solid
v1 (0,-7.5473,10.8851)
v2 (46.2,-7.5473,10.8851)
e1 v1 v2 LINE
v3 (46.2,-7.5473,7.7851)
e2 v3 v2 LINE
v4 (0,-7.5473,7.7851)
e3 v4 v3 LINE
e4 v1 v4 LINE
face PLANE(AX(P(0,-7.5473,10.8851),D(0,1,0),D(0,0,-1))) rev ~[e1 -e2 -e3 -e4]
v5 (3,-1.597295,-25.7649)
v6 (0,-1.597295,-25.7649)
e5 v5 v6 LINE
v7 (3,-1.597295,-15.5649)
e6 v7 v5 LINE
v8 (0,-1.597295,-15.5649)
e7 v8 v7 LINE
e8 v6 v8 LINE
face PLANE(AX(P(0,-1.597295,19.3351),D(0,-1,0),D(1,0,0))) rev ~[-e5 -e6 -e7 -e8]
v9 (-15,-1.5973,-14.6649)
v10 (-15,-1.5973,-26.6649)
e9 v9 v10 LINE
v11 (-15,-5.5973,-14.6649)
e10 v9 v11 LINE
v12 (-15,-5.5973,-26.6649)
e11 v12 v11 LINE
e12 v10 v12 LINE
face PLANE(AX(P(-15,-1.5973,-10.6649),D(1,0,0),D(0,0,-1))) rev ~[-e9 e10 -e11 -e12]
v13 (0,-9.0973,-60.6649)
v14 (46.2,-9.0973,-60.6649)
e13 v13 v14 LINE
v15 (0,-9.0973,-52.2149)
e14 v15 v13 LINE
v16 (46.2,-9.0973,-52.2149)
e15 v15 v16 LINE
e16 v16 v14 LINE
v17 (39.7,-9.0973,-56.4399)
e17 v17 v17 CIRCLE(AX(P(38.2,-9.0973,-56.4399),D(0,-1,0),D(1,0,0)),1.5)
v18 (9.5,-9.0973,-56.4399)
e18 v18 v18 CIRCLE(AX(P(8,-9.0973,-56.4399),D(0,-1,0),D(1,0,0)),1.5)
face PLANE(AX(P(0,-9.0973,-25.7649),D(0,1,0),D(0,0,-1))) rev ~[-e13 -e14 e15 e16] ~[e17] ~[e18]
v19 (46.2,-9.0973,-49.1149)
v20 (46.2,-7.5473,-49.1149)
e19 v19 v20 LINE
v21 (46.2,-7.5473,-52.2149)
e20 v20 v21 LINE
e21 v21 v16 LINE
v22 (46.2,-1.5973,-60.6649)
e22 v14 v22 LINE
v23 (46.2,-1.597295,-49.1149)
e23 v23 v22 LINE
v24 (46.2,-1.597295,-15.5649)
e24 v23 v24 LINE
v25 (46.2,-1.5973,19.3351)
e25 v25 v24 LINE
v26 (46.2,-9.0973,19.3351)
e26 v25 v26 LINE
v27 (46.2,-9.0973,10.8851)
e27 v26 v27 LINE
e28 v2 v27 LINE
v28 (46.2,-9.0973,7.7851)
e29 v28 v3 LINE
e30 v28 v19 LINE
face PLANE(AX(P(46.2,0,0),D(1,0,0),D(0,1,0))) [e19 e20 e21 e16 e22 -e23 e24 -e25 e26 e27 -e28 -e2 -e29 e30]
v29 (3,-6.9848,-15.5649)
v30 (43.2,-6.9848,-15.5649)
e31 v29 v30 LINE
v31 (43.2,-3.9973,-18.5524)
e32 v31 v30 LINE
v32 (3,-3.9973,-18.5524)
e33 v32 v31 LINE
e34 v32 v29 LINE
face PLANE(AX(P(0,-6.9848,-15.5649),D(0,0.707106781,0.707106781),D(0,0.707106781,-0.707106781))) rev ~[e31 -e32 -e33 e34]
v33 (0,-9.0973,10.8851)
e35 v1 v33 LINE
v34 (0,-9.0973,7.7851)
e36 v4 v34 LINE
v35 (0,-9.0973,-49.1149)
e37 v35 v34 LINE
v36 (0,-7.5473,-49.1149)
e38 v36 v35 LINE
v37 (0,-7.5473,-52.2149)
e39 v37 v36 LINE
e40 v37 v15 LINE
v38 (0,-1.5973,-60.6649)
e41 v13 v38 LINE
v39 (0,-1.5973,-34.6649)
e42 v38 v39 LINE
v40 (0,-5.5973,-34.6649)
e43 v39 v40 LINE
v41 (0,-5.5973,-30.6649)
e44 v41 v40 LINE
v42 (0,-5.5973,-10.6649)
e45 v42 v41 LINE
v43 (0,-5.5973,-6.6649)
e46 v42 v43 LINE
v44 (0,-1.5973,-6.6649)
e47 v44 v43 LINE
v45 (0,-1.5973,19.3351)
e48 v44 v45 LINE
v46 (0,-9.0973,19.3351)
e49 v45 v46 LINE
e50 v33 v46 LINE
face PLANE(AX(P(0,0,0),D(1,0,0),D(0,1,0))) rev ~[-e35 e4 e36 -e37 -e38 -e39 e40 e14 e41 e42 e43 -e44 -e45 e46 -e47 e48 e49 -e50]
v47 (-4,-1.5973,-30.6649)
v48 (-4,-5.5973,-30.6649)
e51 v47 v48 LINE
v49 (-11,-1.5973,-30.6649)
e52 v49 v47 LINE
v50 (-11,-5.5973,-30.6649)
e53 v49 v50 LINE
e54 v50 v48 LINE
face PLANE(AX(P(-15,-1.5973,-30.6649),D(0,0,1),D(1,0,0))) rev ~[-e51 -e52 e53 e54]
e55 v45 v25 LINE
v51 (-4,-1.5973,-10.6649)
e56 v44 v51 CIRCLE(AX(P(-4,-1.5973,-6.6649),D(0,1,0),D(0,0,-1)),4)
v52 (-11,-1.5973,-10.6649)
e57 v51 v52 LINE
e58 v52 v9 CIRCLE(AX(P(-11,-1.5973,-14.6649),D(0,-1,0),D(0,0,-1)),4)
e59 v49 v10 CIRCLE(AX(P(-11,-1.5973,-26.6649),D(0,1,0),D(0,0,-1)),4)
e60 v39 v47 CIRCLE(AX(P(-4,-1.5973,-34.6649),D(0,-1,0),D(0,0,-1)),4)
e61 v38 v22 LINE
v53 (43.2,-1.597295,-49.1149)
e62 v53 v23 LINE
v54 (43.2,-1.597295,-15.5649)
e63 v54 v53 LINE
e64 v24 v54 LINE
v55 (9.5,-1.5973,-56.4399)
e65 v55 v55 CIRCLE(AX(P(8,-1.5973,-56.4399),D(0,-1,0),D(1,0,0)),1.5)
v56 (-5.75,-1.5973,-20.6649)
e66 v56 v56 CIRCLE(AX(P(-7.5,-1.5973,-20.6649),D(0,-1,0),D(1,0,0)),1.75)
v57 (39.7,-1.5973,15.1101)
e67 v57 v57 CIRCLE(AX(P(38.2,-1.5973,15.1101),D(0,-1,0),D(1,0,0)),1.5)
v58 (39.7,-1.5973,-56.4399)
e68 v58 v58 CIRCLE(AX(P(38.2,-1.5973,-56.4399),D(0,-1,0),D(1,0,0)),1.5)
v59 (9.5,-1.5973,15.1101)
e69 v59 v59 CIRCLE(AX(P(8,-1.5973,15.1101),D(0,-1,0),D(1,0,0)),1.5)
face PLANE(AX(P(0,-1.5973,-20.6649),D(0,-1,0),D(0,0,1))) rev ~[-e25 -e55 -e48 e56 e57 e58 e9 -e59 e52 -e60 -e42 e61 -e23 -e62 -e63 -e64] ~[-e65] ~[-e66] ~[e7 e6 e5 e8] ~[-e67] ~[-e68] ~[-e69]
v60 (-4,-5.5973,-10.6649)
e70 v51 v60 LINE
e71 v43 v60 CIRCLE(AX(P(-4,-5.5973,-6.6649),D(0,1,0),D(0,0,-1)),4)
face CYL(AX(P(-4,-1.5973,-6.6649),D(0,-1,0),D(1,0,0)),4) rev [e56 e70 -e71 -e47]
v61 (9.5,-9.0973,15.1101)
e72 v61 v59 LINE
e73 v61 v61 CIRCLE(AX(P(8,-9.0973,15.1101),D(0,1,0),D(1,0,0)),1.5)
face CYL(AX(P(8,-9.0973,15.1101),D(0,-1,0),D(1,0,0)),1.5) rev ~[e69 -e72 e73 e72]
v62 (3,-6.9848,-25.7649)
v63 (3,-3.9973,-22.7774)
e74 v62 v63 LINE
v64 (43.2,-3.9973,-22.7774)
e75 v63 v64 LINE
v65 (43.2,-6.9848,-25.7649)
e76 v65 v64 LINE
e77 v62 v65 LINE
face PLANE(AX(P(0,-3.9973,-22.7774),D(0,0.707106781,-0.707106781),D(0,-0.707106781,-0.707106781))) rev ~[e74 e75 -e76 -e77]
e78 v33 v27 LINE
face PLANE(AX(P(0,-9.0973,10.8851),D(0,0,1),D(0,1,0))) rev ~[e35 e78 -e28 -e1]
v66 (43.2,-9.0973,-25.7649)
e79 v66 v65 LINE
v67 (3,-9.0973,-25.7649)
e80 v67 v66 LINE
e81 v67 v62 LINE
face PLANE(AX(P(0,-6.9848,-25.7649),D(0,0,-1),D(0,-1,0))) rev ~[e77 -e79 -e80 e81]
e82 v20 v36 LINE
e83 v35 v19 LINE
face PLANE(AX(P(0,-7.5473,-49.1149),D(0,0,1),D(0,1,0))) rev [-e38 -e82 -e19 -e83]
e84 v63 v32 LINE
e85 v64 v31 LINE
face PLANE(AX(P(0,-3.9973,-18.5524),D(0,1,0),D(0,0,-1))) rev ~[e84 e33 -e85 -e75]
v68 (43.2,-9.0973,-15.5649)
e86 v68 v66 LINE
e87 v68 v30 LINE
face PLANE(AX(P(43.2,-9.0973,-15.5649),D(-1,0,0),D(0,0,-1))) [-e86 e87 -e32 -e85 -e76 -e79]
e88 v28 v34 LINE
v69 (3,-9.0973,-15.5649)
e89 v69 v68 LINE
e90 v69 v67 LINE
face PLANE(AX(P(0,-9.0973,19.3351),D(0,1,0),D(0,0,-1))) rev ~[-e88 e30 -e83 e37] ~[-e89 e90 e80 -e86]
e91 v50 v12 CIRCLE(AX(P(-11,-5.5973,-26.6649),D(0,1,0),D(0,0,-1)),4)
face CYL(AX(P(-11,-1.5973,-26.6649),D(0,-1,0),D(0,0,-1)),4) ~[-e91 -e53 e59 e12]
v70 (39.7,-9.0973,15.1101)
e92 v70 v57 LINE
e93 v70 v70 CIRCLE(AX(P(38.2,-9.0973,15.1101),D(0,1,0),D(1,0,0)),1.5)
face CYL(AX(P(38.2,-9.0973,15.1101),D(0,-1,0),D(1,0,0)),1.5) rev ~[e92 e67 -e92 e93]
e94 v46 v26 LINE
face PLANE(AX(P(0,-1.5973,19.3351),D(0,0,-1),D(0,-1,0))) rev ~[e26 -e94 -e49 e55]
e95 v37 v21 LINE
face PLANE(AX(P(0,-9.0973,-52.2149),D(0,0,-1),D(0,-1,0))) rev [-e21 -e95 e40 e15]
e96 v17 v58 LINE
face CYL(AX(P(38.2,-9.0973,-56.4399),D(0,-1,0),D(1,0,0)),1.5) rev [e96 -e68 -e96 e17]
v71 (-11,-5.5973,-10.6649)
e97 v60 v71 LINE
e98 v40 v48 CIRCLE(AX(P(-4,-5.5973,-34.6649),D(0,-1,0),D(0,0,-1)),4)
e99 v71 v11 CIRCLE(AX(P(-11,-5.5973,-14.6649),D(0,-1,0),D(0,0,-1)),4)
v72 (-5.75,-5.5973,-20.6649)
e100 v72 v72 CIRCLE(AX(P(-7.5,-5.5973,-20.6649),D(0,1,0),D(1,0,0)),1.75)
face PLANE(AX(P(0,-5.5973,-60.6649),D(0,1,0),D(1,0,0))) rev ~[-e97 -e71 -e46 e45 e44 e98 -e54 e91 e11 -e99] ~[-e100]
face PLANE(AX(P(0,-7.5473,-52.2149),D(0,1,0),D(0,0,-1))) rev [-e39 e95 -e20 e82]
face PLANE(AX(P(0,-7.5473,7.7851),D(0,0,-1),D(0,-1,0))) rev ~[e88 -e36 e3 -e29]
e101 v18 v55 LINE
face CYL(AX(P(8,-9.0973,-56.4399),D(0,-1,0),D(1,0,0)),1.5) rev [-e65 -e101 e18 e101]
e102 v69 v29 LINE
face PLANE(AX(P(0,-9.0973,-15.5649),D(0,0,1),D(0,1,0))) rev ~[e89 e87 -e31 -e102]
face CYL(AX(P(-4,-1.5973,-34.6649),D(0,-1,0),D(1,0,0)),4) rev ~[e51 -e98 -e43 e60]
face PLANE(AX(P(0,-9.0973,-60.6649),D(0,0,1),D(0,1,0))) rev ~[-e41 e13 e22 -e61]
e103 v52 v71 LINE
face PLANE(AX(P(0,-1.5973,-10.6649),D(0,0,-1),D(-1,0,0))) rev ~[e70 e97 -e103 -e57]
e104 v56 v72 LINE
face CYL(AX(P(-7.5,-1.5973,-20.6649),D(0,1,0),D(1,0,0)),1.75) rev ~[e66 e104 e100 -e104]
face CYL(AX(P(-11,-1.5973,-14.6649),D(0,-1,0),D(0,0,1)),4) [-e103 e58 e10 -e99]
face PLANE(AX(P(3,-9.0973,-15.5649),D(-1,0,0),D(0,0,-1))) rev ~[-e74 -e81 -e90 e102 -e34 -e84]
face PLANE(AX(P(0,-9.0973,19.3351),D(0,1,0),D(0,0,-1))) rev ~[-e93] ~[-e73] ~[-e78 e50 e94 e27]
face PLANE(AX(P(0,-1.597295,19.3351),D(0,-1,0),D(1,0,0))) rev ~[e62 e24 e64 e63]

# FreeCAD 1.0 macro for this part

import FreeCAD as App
import Part
import Sketcher
Q = App.Units.Quantity


def edges_at(feature, points):
    """Names of the edges that pass closest to the given points."""
    edges = feature.Shape.Edges
    near = lambda p: min(range(len(edges)), key=lambda i: edges[i].distToShape(Part.Vertex(*p))[0])
    return sorted({f"Edge{near(p) + 1}" for p in points})

doc = App.newDocument("Part")
body = doc.addObject("PartDesign::Body", "Body")

# Sketch on YZ plane
sketch1 = body.newObject("Sketcher::SketchObject", "Sketch")
sketch1.AttachmentSupport = (doc.getObject("YZ_Plane"), [""])
sketch1.MapMode = "FlatFace"
sketch1.addGeometry([
    Part.LineSegment(App.Vector(-1.6, 19.3, 0), App.Vector(-9.1, 19.3, 0)),  # 0
    Part.LineSegment(App.Vector(-9.1, 19.3, 0), App.Vector(-9.1, -15.6, 0)),  # 1
    Part.LineSegment(App.Vector(-9.1, -15.6, 0), App.Vector(-7, -15.6, 0)),  # 2
    Part.LineSegment(App.Vector(-7, -15.6, 0), App.Vector(-4, -18.6, 0)),  # 3
    Part.LineSegment(App.Vector(-4, -18.6, 0), App.Vector(-4, -22.8, 0)),  # 4
    Part.LineSegment(App.Vector(-4, -22.8, 0), App.Vector(-7, -25.8, 0)),  # 5
    Part.LineSegment(App.Vector(-7, -25.8, 0), App.Vector(-9.1, -25.8, 0)),  # 6
    Part.LineSegment(App.Vector(-9.1, -25.8, 0), App.Vector(-9.1, -60.7, 0)),  # 7
    Part.LineSegment(App.Vector(-9.1, -60.7, 0), App.Vector(-1.6, -60.7, 0)),  # 8
    Part.LineSegment(App.Vector(-1.6, -60.7, 0), App.Vector(-1.6, 19.3, 0)),  # 9
], False)
sketch1.addConstraint([
    Sketcher.Constraint("Coincident", 0, 2, 1, 1),
    Sketcher.Constraint("Coincident", 1, 2, 2, 1),
    Sketcher.Constraint("Coincident", 2, 2, 3, 1),
    Sketcher.Constraint("Coincident", 3, 2, 4, 1),
    Sketcher.Constraint("Coincident", 4, 2, 5, 1),
    Sketcher.Constraint("Coincident", 5, 2, 6, 1),
    Sketcher.Constraint("Coincident", 6, 2, 7, 1),
    Sketcher.Constraint("Coincident", 7, 2, 8, 1),
    Sketcher.Constraint("Coincident", 8, 2, 9, 1),
    Sketcher.Constraint("Coincident", 9, 2, 0, 1),
    Sketcher.Constraint("Horizontal", 0),
    Sketcher.Constraint("Vertical", 1),
    Sketcher.Constraint("Horizontal", 2),
    Sketcher.Constraint("Vertical", 4),
    Sketcher.Constraint("Horizontal", 6),
    Sketcher.Constraint("Vertical", 7),
    Sketcher.Constraint("Horizontal", 8),
    Sketcher.Constraint("Vertical", 9),
    Sketcher.Constraint("Perpendicular", 3, 5),
    Sketcher.Constraint("Vertical", 2, 2, 5, 2),
    Sketcher.Constraint("Vertical", 1, 2, 6, 2),
    Sketcher.Constraint("Equal", 1, 7),
    Sketcher.Constraint("Equal", 3, 5),
    Sketcher.Constraint("DistanceY", 9, 1, 9, 2, Q("80 mm")),
    Sketcher.Constraint("DistanceX", 0, 2, 0, 1, Q("7.5 mm")),
    Sketcher.Constraint("DistanceY", 5, 2, 2, 2, Q("10.2 mm")),
    Sketcher.Constraint("DistanceX", 1, 2, 3, 2, Q("5.1 mm")),
    Sketcher.Constraint("DistanceY", 4, 2, 4, 1, Q("4.225 mm")),
    Sketcher.Constraint("DistanceY", -1, 1, 0, 2, Q("19.335 mm")),
    Sketcher.Constraint("DistanceX", 0, 2, -1, 1, Q("9.0973 mm")),
])
pad1 = body.newObject("PartDesign::Pad", "Pad")
pad1.Profile = sketch1
pad1.Length = 46.2

# Sketch on YZ plane
sketch2 = body.newObject("Sketcher::SketchObject", "Sketch001")
sketch2.AttachmentSupport = (doc.getObject("YZ_Plane"), [""])
sketch2.MapMode = "FlatFace"
sketch2.addGeometry([
    Part.LineSegment(App.Vector(-7.5, 10.9, 0), App.Vector(-10.6, 10.9, 0)),
    Part.LineSegment(App.Vector(-10.6, 10.9, 0), App.Vector(-10.6, 7.8, 0)),
    Part.LineSegment(App.Vector(-10.6, 7.8, 0), App.Vector(-7.5, 7.8, 0)),
    Part.LineSegment(App.Vector(-7.5, 7.8, 0), App.Vector(-7.5, 10.9, 0)),
], False)
sketch2.addConstraint([
    Sketcher.Constraint("Coincident", 0, 2, 1, 1),
    Sketcher.Constraint("Coincident", 1, 2, 2, 1),
    Sketcher.Constraint("Coincident", 2, 2, 3, 1),
    Sketcher.Constraint("Coincident", 3, 2, 0, 1),
    Sketcher.Constraint("Horizontal", 0),
    Sketcher.Constraint("Vertical", 1),
    Sketcher.Constraint("Horizontal", 2),
    Sketcher.Constraint("Vertical", 3),
    Sketcher.Constraint("Equal", 2, 1),
    Sketcher.Constraint("DistanceX", 0, 2, 0, 1, Q("3.1 mm")),
    Sketcher.Constraint("DistanceY", -1, 1, 0, 2, Q("10.885 mm")),
    Sketcher.Constraint("DistanceX", 0, 2, -1, 1, Q("10.6473 mm")),
])
pocket1 = body.newObject("PartDesign::Pocket", "Pocket")
pocket1.Profile = sketch2
pocket1.Type = "ThroughAll"
pocket1.Reversed = True
doc.recompute()

datumplane = body.newObject("PartDesign::Plane", "DatumPlane")
datumplane.AttachmentSupport = (doc.getObject("XY_Plane"), [""])
datumplane.MapMode = "FlatFace"
datumplane.AttachmentOffset = App.Placement(App.Vector(0, 0, -20.6649), App.Rotation())
mirrored = body.newObject("PartDesign::Mirrored", "Mirrored")
mirrored.Originals = [pocket1]
mirrored.MirrorPlane = (datumplane, [""])
body.Tip = mirrored

# Sketch on XZ plane
sketch3 = body.newObject("Sketcher::SketchObject", "Sketch002")
sketch3.AttachmentSupport = (doc.getObject("XZ_Plane"), [""])
sketch3.MapMode = "FlatFace"
sketch3.AttachmentOffset = App.Placement(App.Vector(0, 0, 9.0973), App.Rotation())
sketch3.addGeometry([
    Part.Circle(App.Vector(38.2, 15.1, 0), App.Vector(0, 0, 1), 1.5),
    Part.Circle(App.Vector(8, 15.1, 0), App.Vector(0, 0, 1), 1.5),
], False)
sketch3.addConstraint([
    Sketcher.Constraint("Equal", 0, 1),
    Sketcher.Constraint("Horizontal", 0, 3, 1, 3),
    Sketcher.Constraint("Diameter", 0, Q("3 mm")),
    Sketcher.Constraint("DistanceX", -1, 1, 1, 3, Q("8 mm")),
    Sketcher.Constraint("DistanceX", -1, 1, 0, 3, Q("38.2 mm")),
    Sketcher.Constraint("DistanceY", -1, 1, 0, 3, Q("15.11 mm")),
])
pocket2 = body.newObject("PartDesign::Pocket", "Pocket001")
pocket2.Profile = sketch3
pocket2.Type = "ThroughAll"
doc.recompute()

datumplane2 = body.newObject("PartDesign::Plane", "DatumPlane001")
datumplane2.AttachmentSupport = (doc.getObject("XY_Plane"), [""])
datumplane2.MapMode = "FlatFace"
datumplane2.AttachmentOffset = App.Placement(App.Vector(0, 0, -20.6649), App.Rotation())
mirrored2 = body.newObject("PartDesign::Mirrored", "Mirrored001")
mirrored2.Originals = [pocket2]
mirrored2.MirrorPlane = (datumplane2, [""])
body.Tip = mirrored2

# Sketch on XZ plane
sketch4 = body.newObject("Sketcher::SketchObject", "Sketch003")
sketch4.AttachmentSupport = (doc.getObject("XZ_Plane"), [""])
sketch4.MapMode = "FlatFace"
sketch4.AttachmentOffset = App.Placement(App.Vector(0, 0, 9.0973), App.Rotation())
sketch4.addGeometry([
    Part.LineSegment(App.Vector(43.2, -15.6, 0), App.Vector(43.2, -49.1, 0)),  # 0
    Part.LineSegment(App.Vector(43.2, -49.1, 0), App.Vector(46.2, -49.1, 0)),  # 1
    Part.LineSegment(App.Vector(46.2, -49.1, 0), App.Vector(46.2, -15.6, 0)),  # 2
    Part.LineSegment(App.Vector(46.2, -15.6, 0), App.Vector(43.2, -15.6, 0)),  # 3
    Part.LineSegment(App.Vector(3, -15.6, 0), App.Vector(0, -15.6, 0)),  # 4
    Part.LineSegment(App.Vector(0, -15.6, 0), App.Vector(0, -25.8, 0)),  # 5
    Part.LineSegment(App.Vector(0, -25.8, 0), App.Vector(3, -25.8, 0)),  # 6
    Part.LineSegment(App.Vector(3, -25.8, 0), App.Vector(3, -15.6, 0)),  # 7
], False)
sketch4.addConstraint([
    Sketcher.Constraint("Coincident", 0, 2, 1, 1),
    Sketcher.Constraint("Coincident", 1, 2, 2, 1),
    Sketcher.Constraint("Coincident", 2, 2, 3, 1),
    Sketcher.Constraint("Coincident", 3, 2, 0, 1),
    Sketcher.Constraint("Coincident", 4, 2, 5, 1),
    Sketcher.Constraint("Coincident", 5, 2, 6, 1),
    Sketcher.Constraint("Coincident", 6, 2, 7, 1),
    Sketcher.Constraint("Coincident", 7, 2, 4, 1),
    Sketcher.Constraint("Vertical", 0),
    Sketcher.Constraint("Horizontal", 1),
    Sketcher.Constraint("Vertical", 2),
    Sketcher.Constraint("Horizontal", 3),
    Sketcher.Constraint("Horizontal", 4),
    Sketcher.Constraint("Vertical", 5),
    Sketcher.Constraint("Horizontal", 6),
    Sketcher.Constraint("Vertical", 7),
    Sketcher.Constraint("PointOnObject", 4, 2, -2),
    Sketcher.Constraint("Horizontal", 3, 2, 4, 2),
    Sketcher.Constraint("Equal", 3, 4),
    Sketcher.Constraint("DistanceX", 1, 1, 1, 2, Q("3 mm")),
    Sketcher.Constraint("DistanceY", 5, 2, 5, 1, Q("10.2 mm")),
    Sketcher.Constraint("DistanceY", 0, 2, 0, 1, Q("33.55 mm")),
    Sketcher.Constraint("DistanceX", -1, 1, 0, 2, Q("43.2 mm")),
    Sketcher.Constraint("DistanceY", 0, 2, -1, 1, Q("49.115 mm")),
])
pad2 = body.newObject("PartDesign::Pad", "Pad001")
pad2.Profile = sketch4
pad2.Type = "UpToLast"
pad2.Reversed = True

# Sketch on XZ plane
sketch5 = body.newObject("Sketcher::SketchObject", "Sketch004")
sketch5.AttachmentSupport = (doc.getObject("XZ_Plane"), [""])
sketch5.MapMode = "FlatFace"
sketch5.AttachmentOffset = App.Placement(App.Vector(0, 0, 1.5973), App.Rotation())
sketch5.addGeometry([
    Part.LineSegment(App.Vector(-15, -10.7, 0), App.Vector(0, -10.7, 0)),  # 0
    Part.LineSegment(App.Vector(0, -10.7, 0), App.Vector(0, -30.7, 0)),  # 1
    Part.LineSegment(App.Vector(0, -30.7, 0), App.Vector(-15, -30.7, 0)),  # 2
    Part.LineSegment(App.Vector(-15, -30.7, 0), App.Vector(-15, -10.7, 0)),  # 3
    Part.Circle(App.Vector(-7.5, -20.7, 0), App.Vector(0, 0, 1), 1.8),  # 4
], False)
sketch5.addConstraint([
    Sketcher.Constraint("Coincident", 0, 2, 1, 1),
    Sketcher.Constraint("Coincident", 1, 2, 2, 1),
    Sketcher.Constraint("Coincident", 2, 2, 3, 1),
    Sketcher.Constraint("Coincident", 3, 2, 0, 1),
    Sketcher.Constraint("Horizontal", 0),
    Sketcher.Constraint("Vertical", 1),
    Sketcher.Constraint("Horizontal", 2),
    Sketcher.Constraint("Vertical", 3),
    Sketcher.Constraint("PointOnObject", 0, 2, -2),
    Sketcher.Constraint("Diameter", 4, Q("3.5 mm")),
    Sketcher.Constraint("DistanceX", 0, 1, 0, 2, Q("15 mm")),
    Sketcher.Constraint("DistanceY", 1, 2, 1, 1, Q("20 mm")),
    Sketcher.Constraint("DistanceX", 4, 3, -1, 1, Q("7.5 mm")),
    Sketcher.Constraint("DistanceY", 4, 3, 0, 2, Q("10 mm")),
    Sketcher.Constraint("DistanceY", 4, 3, -1, 1, Q("20.665 mm")),
])
pad3 = body.newObject("PartDesign::Pad", "Pad002")
pad3.Profile = sketch5
pad3.Length = 4
doc.recompute()

fillet = body.newObject("PartDesign::Fillet", "Fillet")
fillet.Base = (pad3, edges_at(pad3, [
    (0, -3.597, -10.665),
    (-15, -3.597, -10.665),
    (-15, -3.597, -30.665),
    (0, -3.597, -30.665),
]))
fillet.Radius = 4

doc.recompute()
